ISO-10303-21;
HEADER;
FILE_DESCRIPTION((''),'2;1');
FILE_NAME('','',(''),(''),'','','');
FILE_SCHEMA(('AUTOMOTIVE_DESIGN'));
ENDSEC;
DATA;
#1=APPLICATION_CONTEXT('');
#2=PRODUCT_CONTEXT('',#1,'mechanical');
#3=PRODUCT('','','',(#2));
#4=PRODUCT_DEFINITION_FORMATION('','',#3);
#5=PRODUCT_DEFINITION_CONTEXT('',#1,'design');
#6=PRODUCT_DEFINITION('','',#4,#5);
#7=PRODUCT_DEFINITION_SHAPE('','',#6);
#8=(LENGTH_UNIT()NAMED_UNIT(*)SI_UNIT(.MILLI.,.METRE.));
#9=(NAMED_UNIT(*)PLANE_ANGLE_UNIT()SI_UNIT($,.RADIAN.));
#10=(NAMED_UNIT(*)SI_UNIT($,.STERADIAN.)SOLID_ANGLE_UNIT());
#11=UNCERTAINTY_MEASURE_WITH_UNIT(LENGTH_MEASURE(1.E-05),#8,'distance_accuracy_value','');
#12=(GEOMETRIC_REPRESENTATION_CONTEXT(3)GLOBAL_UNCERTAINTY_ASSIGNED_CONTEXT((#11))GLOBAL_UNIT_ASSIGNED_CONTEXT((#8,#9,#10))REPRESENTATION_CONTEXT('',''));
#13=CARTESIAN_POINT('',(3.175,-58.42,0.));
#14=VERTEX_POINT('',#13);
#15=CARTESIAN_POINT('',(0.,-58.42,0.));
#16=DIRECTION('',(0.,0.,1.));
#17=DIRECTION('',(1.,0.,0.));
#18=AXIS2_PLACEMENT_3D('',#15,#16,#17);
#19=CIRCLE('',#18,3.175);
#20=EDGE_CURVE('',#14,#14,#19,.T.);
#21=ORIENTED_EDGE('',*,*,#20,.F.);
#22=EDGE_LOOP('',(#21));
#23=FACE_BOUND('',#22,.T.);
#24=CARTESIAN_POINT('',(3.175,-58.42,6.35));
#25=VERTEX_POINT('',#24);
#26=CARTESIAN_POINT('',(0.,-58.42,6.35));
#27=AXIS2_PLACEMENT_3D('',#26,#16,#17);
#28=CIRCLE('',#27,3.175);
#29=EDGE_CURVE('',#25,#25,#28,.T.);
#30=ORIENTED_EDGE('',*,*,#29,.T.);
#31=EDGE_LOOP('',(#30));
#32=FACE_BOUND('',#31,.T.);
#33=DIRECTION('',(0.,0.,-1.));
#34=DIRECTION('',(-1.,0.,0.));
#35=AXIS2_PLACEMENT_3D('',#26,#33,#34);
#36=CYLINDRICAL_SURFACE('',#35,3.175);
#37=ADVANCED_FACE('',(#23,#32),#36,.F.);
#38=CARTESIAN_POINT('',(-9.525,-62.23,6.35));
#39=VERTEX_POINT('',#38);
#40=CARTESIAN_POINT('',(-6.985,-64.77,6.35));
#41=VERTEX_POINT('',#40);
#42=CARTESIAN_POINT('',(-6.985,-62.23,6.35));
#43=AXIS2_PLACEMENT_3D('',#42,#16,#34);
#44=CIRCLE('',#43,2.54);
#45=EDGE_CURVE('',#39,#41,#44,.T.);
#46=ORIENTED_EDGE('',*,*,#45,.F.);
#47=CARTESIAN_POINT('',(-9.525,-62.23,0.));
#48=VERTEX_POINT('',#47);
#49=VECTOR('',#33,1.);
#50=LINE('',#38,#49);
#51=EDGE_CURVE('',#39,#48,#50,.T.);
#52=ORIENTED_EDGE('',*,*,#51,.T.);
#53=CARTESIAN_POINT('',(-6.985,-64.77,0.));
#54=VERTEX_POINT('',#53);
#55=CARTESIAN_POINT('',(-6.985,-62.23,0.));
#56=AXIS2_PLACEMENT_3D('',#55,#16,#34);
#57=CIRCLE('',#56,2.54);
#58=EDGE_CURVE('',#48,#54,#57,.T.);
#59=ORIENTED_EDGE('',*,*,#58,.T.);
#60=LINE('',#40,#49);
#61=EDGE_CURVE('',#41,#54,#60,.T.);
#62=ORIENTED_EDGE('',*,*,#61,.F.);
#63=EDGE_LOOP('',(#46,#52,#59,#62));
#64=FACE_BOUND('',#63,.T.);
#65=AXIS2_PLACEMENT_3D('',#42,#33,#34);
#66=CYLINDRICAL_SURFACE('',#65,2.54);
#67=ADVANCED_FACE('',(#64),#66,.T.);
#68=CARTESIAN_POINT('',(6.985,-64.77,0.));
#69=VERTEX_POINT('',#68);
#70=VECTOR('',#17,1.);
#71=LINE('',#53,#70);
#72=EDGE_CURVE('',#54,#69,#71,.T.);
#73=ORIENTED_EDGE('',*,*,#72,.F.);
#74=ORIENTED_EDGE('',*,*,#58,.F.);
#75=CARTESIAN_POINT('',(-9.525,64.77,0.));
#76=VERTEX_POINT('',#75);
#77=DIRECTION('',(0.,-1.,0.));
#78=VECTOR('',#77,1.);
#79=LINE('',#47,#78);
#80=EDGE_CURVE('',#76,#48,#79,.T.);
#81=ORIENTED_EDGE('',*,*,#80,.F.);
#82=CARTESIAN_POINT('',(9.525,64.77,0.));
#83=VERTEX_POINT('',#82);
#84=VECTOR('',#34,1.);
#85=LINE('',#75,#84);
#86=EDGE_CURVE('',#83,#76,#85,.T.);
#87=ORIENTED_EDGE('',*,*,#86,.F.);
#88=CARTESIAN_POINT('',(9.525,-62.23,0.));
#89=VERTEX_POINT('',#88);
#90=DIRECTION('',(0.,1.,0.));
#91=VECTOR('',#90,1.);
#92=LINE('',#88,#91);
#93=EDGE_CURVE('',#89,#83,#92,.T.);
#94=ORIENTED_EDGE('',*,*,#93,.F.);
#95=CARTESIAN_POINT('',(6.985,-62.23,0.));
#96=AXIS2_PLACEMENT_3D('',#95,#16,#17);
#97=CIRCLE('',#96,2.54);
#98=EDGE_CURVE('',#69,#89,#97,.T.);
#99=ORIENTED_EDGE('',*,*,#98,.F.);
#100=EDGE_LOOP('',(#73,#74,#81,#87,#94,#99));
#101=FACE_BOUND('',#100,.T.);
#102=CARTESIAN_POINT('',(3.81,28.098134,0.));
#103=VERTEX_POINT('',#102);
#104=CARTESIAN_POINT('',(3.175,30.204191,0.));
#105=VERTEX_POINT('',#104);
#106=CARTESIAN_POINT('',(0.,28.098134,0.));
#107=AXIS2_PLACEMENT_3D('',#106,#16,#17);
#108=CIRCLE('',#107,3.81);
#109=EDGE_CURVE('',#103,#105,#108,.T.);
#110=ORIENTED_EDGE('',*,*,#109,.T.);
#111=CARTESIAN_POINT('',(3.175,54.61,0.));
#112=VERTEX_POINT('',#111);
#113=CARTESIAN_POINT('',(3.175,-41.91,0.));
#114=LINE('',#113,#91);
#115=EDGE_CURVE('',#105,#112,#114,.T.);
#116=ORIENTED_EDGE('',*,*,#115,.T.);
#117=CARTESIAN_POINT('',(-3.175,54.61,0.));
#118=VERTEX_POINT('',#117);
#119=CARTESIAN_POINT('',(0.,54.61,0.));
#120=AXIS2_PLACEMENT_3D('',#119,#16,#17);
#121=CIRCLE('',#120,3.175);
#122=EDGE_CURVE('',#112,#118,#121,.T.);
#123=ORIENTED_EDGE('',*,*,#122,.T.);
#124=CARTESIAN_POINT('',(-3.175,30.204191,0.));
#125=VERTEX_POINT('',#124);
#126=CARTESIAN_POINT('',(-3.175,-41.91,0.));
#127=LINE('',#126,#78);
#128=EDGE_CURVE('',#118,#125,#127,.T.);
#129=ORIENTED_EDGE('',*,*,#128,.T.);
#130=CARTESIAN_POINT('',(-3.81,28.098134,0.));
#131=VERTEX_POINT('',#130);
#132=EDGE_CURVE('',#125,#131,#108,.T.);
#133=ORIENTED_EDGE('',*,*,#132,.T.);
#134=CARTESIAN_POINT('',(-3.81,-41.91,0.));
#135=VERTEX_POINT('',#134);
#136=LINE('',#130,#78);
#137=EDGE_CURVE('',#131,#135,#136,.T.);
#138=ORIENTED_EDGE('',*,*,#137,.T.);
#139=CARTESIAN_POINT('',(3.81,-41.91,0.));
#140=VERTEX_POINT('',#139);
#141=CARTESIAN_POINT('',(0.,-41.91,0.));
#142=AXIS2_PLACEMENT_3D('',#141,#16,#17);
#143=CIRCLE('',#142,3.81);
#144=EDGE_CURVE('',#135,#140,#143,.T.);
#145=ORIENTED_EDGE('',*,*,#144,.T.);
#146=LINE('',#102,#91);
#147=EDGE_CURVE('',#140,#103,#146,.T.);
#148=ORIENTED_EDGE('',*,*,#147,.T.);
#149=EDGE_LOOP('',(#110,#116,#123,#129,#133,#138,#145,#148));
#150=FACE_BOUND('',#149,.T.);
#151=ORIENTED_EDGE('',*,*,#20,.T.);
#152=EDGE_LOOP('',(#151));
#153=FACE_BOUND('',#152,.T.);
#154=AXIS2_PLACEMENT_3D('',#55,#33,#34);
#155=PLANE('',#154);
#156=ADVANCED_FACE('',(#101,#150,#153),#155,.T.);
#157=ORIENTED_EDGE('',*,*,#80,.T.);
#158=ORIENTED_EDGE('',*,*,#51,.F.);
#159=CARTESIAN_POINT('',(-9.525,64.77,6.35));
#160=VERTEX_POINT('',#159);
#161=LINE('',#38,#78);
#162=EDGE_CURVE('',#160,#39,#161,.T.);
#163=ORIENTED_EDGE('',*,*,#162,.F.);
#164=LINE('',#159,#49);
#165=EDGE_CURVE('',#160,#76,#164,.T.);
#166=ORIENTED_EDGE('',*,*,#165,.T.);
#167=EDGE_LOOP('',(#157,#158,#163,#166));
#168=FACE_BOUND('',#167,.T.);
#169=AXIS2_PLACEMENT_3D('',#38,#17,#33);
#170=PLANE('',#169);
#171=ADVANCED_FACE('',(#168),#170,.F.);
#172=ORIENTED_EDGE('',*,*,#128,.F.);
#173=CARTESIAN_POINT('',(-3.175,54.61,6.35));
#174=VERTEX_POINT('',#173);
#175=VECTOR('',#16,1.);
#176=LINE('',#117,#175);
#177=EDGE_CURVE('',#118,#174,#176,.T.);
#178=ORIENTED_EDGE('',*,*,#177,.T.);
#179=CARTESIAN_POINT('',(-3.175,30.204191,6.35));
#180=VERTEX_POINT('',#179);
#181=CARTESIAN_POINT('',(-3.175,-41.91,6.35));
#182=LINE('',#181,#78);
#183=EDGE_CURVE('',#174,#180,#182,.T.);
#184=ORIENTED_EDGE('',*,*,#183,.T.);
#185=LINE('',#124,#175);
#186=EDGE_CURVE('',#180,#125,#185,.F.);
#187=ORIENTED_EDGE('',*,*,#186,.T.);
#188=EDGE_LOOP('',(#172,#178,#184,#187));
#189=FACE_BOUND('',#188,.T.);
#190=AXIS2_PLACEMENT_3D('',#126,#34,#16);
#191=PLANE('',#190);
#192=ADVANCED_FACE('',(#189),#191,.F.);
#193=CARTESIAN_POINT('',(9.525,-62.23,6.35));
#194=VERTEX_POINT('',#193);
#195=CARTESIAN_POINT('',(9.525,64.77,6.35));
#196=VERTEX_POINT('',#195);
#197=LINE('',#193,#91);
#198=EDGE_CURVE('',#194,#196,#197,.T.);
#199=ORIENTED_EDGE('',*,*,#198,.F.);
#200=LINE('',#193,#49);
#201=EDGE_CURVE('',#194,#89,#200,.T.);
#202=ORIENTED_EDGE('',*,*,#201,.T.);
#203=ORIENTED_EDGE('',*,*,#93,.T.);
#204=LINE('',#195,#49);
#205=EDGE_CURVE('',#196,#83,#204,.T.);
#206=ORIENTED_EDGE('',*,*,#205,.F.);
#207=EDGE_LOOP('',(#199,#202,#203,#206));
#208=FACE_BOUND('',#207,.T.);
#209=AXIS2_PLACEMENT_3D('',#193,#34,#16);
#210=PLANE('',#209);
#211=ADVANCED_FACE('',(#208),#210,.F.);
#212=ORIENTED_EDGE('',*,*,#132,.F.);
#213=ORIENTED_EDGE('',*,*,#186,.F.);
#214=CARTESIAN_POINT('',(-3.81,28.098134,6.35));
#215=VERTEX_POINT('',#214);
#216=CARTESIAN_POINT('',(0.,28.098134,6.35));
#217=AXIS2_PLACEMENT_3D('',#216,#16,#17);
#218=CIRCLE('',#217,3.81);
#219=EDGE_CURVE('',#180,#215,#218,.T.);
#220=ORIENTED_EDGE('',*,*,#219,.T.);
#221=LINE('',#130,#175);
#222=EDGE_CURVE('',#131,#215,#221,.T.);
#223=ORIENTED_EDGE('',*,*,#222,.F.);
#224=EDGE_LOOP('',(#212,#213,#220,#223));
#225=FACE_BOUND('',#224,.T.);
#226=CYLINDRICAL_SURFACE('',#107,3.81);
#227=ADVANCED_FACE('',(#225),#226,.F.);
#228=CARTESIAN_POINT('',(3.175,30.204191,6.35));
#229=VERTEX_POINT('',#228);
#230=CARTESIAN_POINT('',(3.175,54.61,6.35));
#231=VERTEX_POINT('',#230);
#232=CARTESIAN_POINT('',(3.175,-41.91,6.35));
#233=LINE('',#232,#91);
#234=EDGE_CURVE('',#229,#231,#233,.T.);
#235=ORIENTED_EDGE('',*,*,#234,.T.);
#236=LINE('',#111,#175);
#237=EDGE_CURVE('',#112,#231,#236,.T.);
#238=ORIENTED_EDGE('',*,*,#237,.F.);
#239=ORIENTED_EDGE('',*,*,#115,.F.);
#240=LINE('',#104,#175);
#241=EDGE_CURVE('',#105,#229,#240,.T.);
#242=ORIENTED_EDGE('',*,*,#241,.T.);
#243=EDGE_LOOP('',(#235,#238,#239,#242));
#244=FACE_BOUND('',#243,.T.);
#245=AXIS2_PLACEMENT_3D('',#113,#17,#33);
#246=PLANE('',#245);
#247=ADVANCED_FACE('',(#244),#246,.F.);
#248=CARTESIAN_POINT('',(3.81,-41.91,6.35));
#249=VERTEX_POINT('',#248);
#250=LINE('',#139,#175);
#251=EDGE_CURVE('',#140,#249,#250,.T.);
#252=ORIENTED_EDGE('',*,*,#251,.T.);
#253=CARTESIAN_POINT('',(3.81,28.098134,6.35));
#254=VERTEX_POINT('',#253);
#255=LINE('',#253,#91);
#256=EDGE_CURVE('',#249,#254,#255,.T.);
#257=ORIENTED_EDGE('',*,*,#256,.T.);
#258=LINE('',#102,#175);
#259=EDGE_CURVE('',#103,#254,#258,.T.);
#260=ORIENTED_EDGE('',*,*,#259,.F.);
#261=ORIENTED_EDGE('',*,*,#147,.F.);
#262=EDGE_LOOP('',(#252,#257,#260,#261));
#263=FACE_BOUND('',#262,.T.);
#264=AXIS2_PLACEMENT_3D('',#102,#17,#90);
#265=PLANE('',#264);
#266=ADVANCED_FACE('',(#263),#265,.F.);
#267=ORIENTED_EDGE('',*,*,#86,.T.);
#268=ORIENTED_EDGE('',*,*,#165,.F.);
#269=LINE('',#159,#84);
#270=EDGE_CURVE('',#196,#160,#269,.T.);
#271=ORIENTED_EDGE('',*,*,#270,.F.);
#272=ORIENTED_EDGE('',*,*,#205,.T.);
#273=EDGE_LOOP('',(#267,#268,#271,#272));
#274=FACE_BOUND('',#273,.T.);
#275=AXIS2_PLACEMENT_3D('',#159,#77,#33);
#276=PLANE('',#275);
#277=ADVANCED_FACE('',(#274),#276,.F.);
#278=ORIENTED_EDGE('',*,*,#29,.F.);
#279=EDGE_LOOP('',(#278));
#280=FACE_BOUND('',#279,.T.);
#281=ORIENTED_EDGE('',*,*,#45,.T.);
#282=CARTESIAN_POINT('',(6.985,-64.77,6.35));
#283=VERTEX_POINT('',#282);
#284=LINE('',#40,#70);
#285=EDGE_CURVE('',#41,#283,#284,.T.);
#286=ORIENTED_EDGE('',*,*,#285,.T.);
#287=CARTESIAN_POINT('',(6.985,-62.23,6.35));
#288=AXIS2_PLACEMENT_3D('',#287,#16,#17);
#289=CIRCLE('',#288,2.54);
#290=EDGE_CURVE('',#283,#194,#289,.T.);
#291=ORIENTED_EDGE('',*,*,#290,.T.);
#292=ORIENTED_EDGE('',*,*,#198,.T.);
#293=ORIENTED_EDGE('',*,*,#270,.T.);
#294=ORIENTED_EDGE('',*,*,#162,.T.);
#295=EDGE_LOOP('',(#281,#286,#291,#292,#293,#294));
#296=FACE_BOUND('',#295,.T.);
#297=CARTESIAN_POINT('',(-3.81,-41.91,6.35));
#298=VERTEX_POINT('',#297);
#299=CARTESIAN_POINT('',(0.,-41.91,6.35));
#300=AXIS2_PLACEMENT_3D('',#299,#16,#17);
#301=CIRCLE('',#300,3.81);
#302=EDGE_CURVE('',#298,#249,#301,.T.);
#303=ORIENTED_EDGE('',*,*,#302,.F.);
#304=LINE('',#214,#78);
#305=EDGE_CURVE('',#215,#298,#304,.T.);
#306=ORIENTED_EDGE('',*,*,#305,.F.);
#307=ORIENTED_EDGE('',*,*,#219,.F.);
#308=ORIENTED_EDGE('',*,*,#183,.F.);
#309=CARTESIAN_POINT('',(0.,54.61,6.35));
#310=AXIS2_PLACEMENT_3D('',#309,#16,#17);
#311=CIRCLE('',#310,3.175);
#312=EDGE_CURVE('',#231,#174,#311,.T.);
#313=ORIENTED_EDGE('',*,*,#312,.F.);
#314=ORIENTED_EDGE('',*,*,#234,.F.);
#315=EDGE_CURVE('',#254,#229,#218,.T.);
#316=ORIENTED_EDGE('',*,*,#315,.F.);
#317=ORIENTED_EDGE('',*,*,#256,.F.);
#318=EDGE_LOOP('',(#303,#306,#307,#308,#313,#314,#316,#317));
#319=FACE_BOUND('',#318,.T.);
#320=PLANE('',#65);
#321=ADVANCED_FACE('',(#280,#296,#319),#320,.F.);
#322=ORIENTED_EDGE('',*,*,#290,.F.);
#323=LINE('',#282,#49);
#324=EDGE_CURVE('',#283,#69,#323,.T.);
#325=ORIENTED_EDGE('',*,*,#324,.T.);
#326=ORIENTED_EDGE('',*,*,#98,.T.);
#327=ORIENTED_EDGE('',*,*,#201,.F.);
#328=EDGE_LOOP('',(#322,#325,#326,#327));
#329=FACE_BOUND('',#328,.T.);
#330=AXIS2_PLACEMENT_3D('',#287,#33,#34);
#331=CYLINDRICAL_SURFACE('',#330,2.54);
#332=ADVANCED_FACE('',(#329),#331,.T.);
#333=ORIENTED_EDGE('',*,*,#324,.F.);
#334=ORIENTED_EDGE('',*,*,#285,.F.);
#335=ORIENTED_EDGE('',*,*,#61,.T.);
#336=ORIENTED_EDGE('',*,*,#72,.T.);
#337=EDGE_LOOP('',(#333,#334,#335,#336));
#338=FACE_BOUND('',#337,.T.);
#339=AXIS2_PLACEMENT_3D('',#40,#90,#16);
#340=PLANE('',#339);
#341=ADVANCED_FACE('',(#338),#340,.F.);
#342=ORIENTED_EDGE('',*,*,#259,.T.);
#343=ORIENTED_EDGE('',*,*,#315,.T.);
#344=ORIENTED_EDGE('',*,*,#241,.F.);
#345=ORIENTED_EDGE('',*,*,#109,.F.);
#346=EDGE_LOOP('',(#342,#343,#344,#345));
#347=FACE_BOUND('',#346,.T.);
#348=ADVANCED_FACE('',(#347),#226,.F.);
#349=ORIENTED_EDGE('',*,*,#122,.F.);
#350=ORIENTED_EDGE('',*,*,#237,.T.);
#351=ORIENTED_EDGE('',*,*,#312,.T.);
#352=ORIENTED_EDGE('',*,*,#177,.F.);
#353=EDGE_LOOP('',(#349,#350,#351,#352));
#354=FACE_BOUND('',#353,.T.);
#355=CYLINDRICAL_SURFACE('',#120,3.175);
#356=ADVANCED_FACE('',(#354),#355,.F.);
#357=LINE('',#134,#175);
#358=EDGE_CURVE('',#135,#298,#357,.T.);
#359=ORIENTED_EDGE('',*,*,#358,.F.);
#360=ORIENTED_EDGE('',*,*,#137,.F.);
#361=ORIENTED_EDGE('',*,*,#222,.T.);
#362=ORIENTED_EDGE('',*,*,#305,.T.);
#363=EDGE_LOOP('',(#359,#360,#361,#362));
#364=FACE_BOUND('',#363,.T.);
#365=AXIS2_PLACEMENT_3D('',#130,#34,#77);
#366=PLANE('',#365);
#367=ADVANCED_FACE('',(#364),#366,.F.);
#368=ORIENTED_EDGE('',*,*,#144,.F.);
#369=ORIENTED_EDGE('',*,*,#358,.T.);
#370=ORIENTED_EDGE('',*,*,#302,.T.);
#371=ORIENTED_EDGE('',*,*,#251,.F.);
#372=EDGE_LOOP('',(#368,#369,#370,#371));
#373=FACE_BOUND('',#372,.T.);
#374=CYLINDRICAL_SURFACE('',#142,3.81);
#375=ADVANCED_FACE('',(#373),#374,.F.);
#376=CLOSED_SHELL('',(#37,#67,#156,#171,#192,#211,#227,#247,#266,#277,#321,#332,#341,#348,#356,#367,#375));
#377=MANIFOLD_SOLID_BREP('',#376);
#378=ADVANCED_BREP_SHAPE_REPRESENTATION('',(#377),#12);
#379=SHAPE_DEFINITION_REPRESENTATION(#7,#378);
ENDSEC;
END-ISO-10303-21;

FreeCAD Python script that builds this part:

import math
import FreeCAD as App
import Part
import Sketcher
Q = App.Units.Quantity

doc = App.newDocument("Part")
params = doc.addObject("Spreadsheet::Sheet", "Params")
for row, (alias, value) in enumerate([
    ("sketch1_radius", "0.1 in"),
    ("sketch1_diameter", "0.25 in"),
    ("sketch1_height", "5 in"),
    ("sketch1_width", "0.55 in"),
    ("pad1_length", "0.25 in"),
    ("sketch2_height", "3.8 in"),
    ("sketch2_radius", "0.125 in"),
    ("sketch3_radius", "0.15 in"),
], start=1):
    params.set(f"A{row}", alias)
    params.set(f"B{row}", "=" + value)
    params.setAlias(f"B{row}", alias)

body = doc.addObject("PartDesign::Body", "Body")

# Sketch on XY plane
sketch1 = doc.addObject("Sketcher::SketchObject", "Sketch")
body.addObject(sketch1)
sketch1.AttachmentSupport = (doc.XY_Plane, [""])
sketch1.MapMode = "FlatFace"
sketch1.addGeometry(Part.LineSegment(App.Vector(-7, -64.8, 0), App.Vector(7, -64.8, 0)), False)
sketch1.addGeometry(Part.ArcOfCircle(Part.Circle(App.Vector(7, -62.2, 0), App.Vector(0, 0, 1), 2.5), math.radians(-90), math.radians(0)), False)
sketch1.addGeometry(Part.LineSegment(App.Vector(9.5, -62.2, 0), App.Vector(9.5, 64.8, 0)), False)
sketch1.addGeometry(Part.LineSegment(App.Vector(9.5, 64.8, 0), App.Vector(-9.5, 64.8, 0)), False)
sketch1.addGeometry(Part.LineSegment(App.Vector(-9.5, 64.8, 0), App.Vector(-9.5, -62.2, 0)), False)
sketch1.addGeometry(Part.ArcOfCircle(Part.Circle(App.Vector(-7, -62.2, 0), App.Vector(0, 0, 1), 2.5), math.radians(-180), math.radians(-90)), False)
sketch1.addGeometry(Part.Circle(App.Vector(0, -58.4, 0), App.Vector(0, 0, 1), 3.2), False)
sketch1.addConstraint(Sketcher.Constraint("Tangent", 0, 2, 1, 1))
sketch1.addConstraint(Sketcher.Constraint("Tangent", 1, 2, 2, 1))
sketch1.addConstraint(Sketcher.Constraint("Coincident", 2, 2, 3, 1))
sketch1.addConstraint(Sketcher.Constraint("Coincident", 3, 2, 4, 1))
sketch1.addConstraint(Sketcher.Constraint("Tangent", 4, 2, 5, 1))
sketch1.addConstraint(Sketcher.Constraint("Tangent", 5, 2, 0, 1))
sketch1.addConstraint(Sketcher.Constraint("Horizontal", 0))
sketch1.addConstraint(Sketcher.Constraint("Vertical", 2))
sketch1.addConstraint(Sketcher.Constraint("Horizontal", 3))
sketch1.addConstraint(Sketcher.Constraint("Vertical", 4))
sketch1.addConstraint(Sketcher.Constraint("Equal", 1, 5))
sketch1.addConstraint(Sketcher.Constraint("PointOnObject", 6, 3, -2))
sketch1.addConstraint(Sketcher.Constraint("Radius", 1, Q("0.1 in")))
sketch1.addConstraint(Sketcher.Constraint("Diameter", 6, Q("0.25 in")))
sketch1.addConstraint(Sketcher.Constraint("DistanceY", 2, 1, 2, 2, Q("5 in")))
sketch1.addConstraint(Sketcher.Constraint("DistanceX", 0, 1, 0, 2, Q("0.55 in")))
sketch1.addConstraint(Sketcher.Constraint("DistanceY", 6, 3, -1, 1, Q("2.3 in")))
sketch1.addConstraint(Sketcher.Constraint("DistanceY", 1, 3, -1, 1, Q("2.45 in")))
sketch1.addConstraint(Sketcher.Constraint("DistanceX", -1, 1, 1, 3, Q("0.275 in")))
sketch1.setExpression("Constraints[12]", "Params.sketch1_radius")
sketch1.setExpression("Constraints[13]", "Params.sketch1_diameter")
sketch1.setExpression("Constraints[14]", "Params.sketch1_height")
sketch1.setExpression("Constraints[15]", "Params.sketch1_width")
pad1 = doc.addObject("PartDesign::Pad", "Pad")
body.addObject(pad1)
pad1.Profile = sketch1
pad1.setExpression("Length", "Params.pad1_length")

# Sketch on XY plane
sketch2 = doc.addObject("Sketcher::SketchObject", "Sketch001")
body.addObject(sketch2)
sketch2.AttachmentSupport = (doc.XY_Plane, [""])
sketch2.MapMode = "FlatFace"
sketch2.AttachmentOffset = App.Placement(App.Vector(0, 0, 0.25 * 25.4), App.Rotation())
sketch2.addGeometry(Part.LineSegment(App.Vector(-3.2, 54.6, 0), App.Vector(-3.2, -41.9, 0)), False)
sketch2.addGeometry(Part.ArcOfCircle(Part.Circle(App.Vector(0, -41.9, 0), App.Vector(0, 0, 1), 3.2), math.radians(180), math.radians(360)), False)
sketch2.addGeometry(Part.LineSegment(App.Vector(3.2, -41.9, 0), App.Vector(3.2, 54.6, 0)), False)
sketch2.addGeometry(Part.ArcOfCircle(Part.Circle(App.Vector(0, 54.6, 0), App.Vector(0, 0, 1), 3.2), math.radians(0), math.radians(180)), False)
sketch2.addConstraint(Sketcher.Constraint("Tangent", 0, 2, 1, 1))
sketch2.addConstraint(Sketcher.Constraint("Tangent", 1, 2, 2, 1))
sketch2.addConstraint(Sketcher.Constraint("Tangent", 2, 2, 3, 1))
sketch2.addConstraint(Sketcher.Constraint("Tangent", 3, 2, 0, 1))
sketch2.addConstraint(Sketcher.Constraint("Vertical", 0))
sketch2.addConstraint(Sketcher.Constraint("Vertical", 2))
sketch2.addConstraint(Sketcher.Constraint("PointOnObject", 1, 3, -2))
sketch2.addConstraint(Sketcher.Constraint("DistanceY", 0, 2, 0, 1, Q("3.8 in")))
sketch2.addConstraint(Sketcher.Constraint("Radius", 1, Q("0.125 in")))
sketch2.addConstraint(Sketcher.Constraint("DistanceY", 1, 3, -1, 1, Q("1.65 in")))
sketch2.setExpression("Constraints[7]", "Params.sketch2_height")
sketch2.setExpression("Constraints[8]", "Params.sketch2_radius")
pocket1 = doc.addObject("PartDesign::Pocket", "Pocket")
body.addObject(pocket1)
pocket1.Profile = sketch2
pocket1.Type = "ThroughAll"
pocket1.Midplane = True

# Sketch on XY plane
sketch3 = doc.addObject("Sketcher::SketchObject", "Sketch002")
body.addObject(sketch3)
sketch3.AttachmentSupport = (doc.XY_Plane, [""])
sketch3.MapMode = "FlatFace"
sketch3.AttachmentOffset = App.Placement(App.Vector(0, 0, 0.25 * 25.4), App.Rotation())
sketch3.addGeometry(Part.LineSegment(App.Vector(3.8, -41.9, 0), App.Vector(3.8, 28.1, 0)), False)
sketch3.addGeometry(Part.ArcOfCircle(Part.Circle(App.Vector(0, 28.1, 0), App.Vector(0, 0, 1), 3.8), math.radians(0), math.radians(180)), False)
sketch3.addGeometry(Part.LineSegment(App.Vector(-3.8, 28.1, 0), App.Vector(-3.8, -41.9, 0)), False)
sketch3.addGeometry(Part.ArcOfCircle(Part.Circle(App.Vector(0, -41.9, 0), App.Vector(0, 0, 1), 3.8), math.radians(180), math.radians(360)), False)
sketch3.addConstraint(Sketcher.Constraint("Tangent", 0, 2, 1, 1))
sketch3.addConstraint(Sketcher.Constraint("Tangent", 1, 2, 2, 1))
sketch3.addConstraint(Sketcher.Constraint("Tangent", 2, 2, 3, 1))
sketch3.addConstraint(Sketcher.Constraint("Tangent", 3, 2, 0, 1))
sketch3.addConstraint(Sketcher.Constraint("Vertical", 0))
sketch3.addConstraint(Sketcher.Constraint("Vertical", 2))
sketch3.addConstraint(Sketcher.Constraint("PointOnObject", 1, 3, -2))
sketch3.addConstraint(Sketcher.Constraint("Radius", 1, Q("0.15 in")))
sketch3.addConstraint(Sketcher.Constraint("DistanceY", 3, 3, -1, 1, Q("1.65 in")))
sketch3.addConstraint(Sketcher.Constraint("DistanceY", 0, 1, 0, 2, 70.008134))
sketch3.setExpression("Constraints[7]", "Params.sketch3_radius")
pocket2 = doc.addObject("PartDesign::Pocket", "Pocket001")
body.addObject(pocket2)
pocket2.Profile = sketch3
pocket2.Type = "ThroughAll"

doc.recompute()
